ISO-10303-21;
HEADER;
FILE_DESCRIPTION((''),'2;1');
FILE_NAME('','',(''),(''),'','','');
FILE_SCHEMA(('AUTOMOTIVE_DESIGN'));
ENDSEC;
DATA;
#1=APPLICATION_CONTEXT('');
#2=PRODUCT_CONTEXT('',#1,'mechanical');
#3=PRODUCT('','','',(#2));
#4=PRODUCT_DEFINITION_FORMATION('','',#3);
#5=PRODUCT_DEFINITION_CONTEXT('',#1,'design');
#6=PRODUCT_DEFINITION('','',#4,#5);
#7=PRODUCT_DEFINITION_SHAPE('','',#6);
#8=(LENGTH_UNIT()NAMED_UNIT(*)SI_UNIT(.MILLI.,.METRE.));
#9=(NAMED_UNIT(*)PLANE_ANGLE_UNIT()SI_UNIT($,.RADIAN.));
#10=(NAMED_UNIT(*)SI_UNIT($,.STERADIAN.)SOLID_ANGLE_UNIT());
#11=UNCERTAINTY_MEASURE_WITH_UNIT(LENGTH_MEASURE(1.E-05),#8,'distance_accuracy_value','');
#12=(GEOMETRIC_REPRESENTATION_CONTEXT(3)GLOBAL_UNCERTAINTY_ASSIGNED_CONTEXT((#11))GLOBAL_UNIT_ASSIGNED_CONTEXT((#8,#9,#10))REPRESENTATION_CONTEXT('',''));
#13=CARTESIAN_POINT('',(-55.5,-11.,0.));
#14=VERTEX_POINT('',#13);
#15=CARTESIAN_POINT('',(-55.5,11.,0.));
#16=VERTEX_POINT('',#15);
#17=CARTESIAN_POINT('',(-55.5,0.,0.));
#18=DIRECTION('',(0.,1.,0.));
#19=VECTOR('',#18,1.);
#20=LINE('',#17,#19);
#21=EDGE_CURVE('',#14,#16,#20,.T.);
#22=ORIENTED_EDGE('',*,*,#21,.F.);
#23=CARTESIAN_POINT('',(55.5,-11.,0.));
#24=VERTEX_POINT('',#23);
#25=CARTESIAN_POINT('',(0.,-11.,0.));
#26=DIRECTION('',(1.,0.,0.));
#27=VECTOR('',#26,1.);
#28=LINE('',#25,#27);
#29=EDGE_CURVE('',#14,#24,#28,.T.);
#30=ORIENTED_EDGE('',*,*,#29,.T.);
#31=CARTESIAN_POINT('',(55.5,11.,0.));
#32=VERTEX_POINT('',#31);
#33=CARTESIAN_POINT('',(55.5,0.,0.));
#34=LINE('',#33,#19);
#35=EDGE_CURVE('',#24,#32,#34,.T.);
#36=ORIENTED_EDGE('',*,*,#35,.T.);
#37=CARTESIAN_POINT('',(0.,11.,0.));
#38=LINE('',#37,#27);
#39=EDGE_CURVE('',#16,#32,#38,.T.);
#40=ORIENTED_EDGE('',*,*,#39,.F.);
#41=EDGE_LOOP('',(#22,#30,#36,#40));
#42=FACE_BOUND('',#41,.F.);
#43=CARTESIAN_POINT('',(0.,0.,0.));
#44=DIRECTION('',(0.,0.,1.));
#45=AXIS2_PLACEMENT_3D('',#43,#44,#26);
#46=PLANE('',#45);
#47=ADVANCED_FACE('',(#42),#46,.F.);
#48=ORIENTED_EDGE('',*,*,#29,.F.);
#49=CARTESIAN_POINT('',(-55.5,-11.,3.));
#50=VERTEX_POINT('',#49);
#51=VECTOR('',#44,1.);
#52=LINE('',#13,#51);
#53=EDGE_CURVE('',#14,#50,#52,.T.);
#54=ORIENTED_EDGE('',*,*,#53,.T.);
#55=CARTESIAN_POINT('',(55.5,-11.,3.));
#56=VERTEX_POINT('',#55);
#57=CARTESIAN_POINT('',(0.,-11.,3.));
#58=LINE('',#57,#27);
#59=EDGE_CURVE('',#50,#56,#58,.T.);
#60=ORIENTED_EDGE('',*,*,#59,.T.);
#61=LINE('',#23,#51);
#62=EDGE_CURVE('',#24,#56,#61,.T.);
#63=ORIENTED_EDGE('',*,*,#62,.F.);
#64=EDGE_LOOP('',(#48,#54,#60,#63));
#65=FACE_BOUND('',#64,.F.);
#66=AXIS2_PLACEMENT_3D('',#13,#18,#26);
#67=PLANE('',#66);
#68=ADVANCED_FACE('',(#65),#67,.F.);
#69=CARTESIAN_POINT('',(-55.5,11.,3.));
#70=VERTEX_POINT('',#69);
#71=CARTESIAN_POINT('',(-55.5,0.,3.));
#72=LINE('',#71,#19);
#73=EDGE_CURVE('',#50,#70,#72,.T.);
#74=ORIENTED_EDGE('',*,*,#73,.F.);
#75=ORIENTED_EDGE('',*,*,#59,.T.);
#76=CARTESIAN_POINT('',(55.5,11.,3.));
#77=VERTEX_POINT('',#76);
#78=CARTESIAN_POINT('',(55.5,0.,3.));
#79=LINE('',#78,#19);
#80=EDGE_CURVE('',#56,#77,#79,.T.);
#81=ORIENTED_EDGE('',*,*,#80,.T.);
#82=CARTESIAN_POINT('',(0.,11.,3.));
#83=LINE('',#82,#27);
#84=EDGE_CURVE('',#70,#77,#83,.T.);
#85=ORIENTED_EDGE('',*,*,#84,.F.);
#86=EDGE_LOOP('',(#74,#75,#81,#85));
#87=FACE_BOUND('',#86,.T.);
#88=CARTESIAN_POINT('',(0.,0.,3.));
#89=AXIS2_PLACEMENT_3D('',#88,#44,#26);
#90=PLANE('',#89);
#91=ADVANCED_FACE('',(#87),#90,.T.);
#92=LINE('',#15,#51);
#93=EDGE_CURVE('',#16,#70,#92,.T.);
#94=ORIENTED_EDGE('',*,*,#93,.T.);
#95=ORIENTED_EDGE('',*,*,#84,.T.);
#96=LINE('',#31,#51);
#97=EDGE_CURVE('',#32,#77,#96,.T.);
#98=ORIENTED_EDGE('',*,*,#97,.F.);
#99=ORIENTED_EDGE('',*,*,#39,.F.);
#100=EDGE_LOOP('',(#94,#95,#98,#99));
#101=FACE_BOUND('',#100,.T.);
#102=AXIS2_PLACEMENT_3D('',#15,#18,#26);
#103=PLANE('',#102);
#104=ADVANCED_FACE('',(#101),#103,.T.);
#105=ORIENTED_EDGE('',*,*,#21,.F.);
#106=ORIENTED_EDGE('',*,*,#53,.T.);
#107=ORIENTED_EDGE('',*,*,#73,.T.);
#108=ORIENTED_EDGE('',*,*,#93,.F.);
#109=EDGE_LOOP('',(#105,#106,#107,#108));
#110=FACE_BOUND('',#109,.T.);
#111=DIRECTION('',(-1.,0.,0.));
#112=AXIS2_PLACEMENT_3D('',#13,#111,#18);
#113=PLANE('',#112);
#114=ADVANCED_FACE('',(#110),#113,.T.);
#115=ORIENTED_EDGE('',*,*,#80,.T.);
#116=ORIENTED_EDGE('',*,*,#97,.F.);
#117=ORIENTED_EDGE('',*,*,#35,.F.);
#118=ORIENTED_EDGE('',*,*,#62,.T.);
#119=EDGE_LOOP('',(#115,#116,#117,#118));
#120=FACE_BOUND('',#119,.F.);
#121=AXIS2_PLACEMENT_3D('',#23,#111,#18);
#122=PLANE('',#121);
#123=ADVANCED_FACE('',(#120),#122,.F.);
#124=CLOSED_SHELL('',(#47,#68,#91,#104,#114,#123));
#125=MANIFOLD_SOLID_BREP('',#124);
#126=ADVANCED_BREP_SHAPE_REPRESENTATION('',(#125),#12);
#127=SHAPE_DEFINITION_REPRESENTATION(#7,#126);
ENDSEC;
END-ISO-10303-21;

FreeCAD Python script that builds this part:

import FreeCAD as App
import Part
import Sketcher

V = App.Vector
Q = App.Units.Quantity

doc = App.newDocument("Part")
body = doc.addObject("PartDesign::Body", "Body")

# Sketch on XY plane
sketch1 = body.newObject("Sketcher::SketchObject", "Sketch")
sketch1.AttachmentSupport = (doc.getObject("XY_Plane"), [""])
sketch1.MapMode = "FlatFace"
sketch1.addGeometry([
    Part.LineSegment(V(-55.5, 11, 0), V(-55.5, -11, 0)),
    Part.LineSegment(V(-55.5, -11, 0), V(55.5, -11, 0)),
    Part.LineSegment(V(55.5, -11, 0), V(55.5, 11, 0)),
    Part.LineSegment(V(55.5, 11, 0), V(-55.5, 11, 0)),
], False)
sketch1.addConstraint([
    Sketcher.Constraint("Coincident", 0, 2, 1, 1),
    Sketcher.Constraint("Coincident", 1, 2, 2, 1),
    Sketcher.Constraint("Coincident", 2, 2, 3, 1),
    Sketcher.Constraint("Coincident", 3, 2, 0, 1),
    Sketcher.Constraint("Vertical", 0),
    Sketcher.Constraint("Horizontal", 1),
    Sketcher.Constraint("Vertical", 2),
    Sketcher.Constraint("Horizontal", 3),
    Sketcher.Constraint("Symmetric", 0, 2, 2, 2, -1, 1),
    Sketcher.Constraint("DistanceX", 1, 1, 1, 2, Q("111 mm")),
    Sketcher.Constraint("DistanceY", 0, 2, 0, 1, Q("22 mm")),
])
pad1 = body.newObject("PartDesign::Pad", "Pad")
pad1.Profile = sketch1
pad1.Length = 3

doc.recompute()
